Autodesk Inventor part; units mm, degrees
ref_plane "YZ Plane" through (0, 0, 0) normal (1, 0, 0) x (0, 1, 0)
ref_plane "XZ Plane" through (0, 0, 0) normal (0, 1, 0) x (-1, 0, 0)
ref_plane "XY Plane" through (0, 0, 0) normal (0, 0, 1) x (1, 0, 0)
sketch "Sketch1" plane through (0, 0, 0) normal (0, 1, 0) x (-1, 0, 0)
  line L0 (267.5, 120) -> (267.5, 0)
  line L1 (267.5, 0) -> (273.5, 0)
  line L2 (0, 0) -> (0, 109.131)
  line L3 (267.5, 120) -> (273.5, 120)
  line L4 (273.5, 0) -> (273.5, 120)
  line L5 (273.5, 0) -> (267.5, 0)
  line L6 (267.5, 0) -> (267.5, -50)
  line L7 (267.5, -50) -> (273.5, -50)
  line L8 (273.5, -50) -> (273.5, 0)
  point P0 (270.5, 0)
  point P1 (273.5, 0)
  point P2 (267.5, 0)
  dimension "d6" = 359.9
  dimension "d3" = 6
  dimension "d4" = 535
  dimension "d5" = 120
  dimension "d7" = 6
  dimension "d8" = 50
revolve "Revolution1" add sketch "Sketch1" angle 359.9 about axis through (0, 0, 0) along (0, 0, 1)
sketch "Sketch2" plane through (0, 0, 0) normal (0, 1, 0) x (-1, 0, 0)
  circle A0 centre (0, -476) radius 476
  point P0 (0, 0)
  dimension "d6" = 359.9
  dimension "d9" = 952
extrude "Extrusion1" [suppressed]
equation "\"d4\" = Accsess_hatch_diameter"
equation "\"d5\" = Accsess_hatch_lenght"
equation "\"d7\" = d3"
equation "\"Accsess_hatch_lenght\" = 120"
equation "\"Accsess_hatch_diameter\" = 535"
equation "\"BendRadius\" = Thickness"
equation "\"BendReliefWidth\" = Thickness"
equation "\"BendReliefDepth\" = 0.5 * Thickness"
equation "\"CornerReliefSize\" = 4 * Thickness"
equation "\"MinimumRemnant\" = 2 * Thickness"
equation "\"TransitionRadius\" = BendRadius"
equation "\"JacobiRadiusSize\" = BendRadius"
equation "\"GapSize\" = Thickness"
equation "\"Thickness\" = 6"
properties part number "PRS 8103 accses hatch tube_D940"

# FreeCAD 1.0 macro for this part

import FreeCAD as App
import Part
import Sketcher

V = App.Vector


def add_polygon(sketch, points):
    """Adds a closed chain of lines whose ends are joined by coincident constraints."""
    first, n = sketch.GeometryCount, len(points)
    for a, b in zip(points, points[1:] + points[:1]):
        sketch.addGeometry(Part.LineSegment(App.Vector(*a, 0), App.Vector(*b, 0)), False)
    for i in range(n):
        sketch.addConstraint(Sketcher.Constraint("Coincident", first + i, 2, first + (i + 1) % n, 1))

doc = App.newDocument("Part")
body = doc.addObject("PartDesign::Body", "Body")

sketch1 = doc.addObject("Sketcher::SketchObject", "Sketch")
body.addObject(sketch1)
sketch1.AttachmentSupport = (doc.XZ_Plane, [""])
sketch1.MapMode = "FlatFace"
add_polygon(sketch1, [(-274, 120), (-268, 120), (-268, -50), (-274, -50)])
sketch1.addConstraint([
    Sketcher.Constraint("Horizontal", 0),
    Sketcher.Constraint("Vertical", 1),
    Sketcher.Constraint("Horizontal", 2),
    Sketcher.Constraint("Vertical", 3),
    Sketcher.Constraint("DistanceX", 0, 1, 0, 2, 6.0),
    Sketcher.Constraint("DistanceY", -1, 1, 0, 2, 120.0),
    Sketcher.Constraint("DistanceY", 1, 2, -1, 1, 50.0),
    Sketcher.Constraint("DistanceX", 0, 2, -1, 1, 267.5),
])
revolution = doc.addObject("PartDesign::Revolution", "Revolution")
body.addObject(revolution)
revolution.Profile = sketch1
revolution.ReferenceAxis = (sketch1, ["V_Axis"])
revolution.Angle = 359.9

doc.recompute()
